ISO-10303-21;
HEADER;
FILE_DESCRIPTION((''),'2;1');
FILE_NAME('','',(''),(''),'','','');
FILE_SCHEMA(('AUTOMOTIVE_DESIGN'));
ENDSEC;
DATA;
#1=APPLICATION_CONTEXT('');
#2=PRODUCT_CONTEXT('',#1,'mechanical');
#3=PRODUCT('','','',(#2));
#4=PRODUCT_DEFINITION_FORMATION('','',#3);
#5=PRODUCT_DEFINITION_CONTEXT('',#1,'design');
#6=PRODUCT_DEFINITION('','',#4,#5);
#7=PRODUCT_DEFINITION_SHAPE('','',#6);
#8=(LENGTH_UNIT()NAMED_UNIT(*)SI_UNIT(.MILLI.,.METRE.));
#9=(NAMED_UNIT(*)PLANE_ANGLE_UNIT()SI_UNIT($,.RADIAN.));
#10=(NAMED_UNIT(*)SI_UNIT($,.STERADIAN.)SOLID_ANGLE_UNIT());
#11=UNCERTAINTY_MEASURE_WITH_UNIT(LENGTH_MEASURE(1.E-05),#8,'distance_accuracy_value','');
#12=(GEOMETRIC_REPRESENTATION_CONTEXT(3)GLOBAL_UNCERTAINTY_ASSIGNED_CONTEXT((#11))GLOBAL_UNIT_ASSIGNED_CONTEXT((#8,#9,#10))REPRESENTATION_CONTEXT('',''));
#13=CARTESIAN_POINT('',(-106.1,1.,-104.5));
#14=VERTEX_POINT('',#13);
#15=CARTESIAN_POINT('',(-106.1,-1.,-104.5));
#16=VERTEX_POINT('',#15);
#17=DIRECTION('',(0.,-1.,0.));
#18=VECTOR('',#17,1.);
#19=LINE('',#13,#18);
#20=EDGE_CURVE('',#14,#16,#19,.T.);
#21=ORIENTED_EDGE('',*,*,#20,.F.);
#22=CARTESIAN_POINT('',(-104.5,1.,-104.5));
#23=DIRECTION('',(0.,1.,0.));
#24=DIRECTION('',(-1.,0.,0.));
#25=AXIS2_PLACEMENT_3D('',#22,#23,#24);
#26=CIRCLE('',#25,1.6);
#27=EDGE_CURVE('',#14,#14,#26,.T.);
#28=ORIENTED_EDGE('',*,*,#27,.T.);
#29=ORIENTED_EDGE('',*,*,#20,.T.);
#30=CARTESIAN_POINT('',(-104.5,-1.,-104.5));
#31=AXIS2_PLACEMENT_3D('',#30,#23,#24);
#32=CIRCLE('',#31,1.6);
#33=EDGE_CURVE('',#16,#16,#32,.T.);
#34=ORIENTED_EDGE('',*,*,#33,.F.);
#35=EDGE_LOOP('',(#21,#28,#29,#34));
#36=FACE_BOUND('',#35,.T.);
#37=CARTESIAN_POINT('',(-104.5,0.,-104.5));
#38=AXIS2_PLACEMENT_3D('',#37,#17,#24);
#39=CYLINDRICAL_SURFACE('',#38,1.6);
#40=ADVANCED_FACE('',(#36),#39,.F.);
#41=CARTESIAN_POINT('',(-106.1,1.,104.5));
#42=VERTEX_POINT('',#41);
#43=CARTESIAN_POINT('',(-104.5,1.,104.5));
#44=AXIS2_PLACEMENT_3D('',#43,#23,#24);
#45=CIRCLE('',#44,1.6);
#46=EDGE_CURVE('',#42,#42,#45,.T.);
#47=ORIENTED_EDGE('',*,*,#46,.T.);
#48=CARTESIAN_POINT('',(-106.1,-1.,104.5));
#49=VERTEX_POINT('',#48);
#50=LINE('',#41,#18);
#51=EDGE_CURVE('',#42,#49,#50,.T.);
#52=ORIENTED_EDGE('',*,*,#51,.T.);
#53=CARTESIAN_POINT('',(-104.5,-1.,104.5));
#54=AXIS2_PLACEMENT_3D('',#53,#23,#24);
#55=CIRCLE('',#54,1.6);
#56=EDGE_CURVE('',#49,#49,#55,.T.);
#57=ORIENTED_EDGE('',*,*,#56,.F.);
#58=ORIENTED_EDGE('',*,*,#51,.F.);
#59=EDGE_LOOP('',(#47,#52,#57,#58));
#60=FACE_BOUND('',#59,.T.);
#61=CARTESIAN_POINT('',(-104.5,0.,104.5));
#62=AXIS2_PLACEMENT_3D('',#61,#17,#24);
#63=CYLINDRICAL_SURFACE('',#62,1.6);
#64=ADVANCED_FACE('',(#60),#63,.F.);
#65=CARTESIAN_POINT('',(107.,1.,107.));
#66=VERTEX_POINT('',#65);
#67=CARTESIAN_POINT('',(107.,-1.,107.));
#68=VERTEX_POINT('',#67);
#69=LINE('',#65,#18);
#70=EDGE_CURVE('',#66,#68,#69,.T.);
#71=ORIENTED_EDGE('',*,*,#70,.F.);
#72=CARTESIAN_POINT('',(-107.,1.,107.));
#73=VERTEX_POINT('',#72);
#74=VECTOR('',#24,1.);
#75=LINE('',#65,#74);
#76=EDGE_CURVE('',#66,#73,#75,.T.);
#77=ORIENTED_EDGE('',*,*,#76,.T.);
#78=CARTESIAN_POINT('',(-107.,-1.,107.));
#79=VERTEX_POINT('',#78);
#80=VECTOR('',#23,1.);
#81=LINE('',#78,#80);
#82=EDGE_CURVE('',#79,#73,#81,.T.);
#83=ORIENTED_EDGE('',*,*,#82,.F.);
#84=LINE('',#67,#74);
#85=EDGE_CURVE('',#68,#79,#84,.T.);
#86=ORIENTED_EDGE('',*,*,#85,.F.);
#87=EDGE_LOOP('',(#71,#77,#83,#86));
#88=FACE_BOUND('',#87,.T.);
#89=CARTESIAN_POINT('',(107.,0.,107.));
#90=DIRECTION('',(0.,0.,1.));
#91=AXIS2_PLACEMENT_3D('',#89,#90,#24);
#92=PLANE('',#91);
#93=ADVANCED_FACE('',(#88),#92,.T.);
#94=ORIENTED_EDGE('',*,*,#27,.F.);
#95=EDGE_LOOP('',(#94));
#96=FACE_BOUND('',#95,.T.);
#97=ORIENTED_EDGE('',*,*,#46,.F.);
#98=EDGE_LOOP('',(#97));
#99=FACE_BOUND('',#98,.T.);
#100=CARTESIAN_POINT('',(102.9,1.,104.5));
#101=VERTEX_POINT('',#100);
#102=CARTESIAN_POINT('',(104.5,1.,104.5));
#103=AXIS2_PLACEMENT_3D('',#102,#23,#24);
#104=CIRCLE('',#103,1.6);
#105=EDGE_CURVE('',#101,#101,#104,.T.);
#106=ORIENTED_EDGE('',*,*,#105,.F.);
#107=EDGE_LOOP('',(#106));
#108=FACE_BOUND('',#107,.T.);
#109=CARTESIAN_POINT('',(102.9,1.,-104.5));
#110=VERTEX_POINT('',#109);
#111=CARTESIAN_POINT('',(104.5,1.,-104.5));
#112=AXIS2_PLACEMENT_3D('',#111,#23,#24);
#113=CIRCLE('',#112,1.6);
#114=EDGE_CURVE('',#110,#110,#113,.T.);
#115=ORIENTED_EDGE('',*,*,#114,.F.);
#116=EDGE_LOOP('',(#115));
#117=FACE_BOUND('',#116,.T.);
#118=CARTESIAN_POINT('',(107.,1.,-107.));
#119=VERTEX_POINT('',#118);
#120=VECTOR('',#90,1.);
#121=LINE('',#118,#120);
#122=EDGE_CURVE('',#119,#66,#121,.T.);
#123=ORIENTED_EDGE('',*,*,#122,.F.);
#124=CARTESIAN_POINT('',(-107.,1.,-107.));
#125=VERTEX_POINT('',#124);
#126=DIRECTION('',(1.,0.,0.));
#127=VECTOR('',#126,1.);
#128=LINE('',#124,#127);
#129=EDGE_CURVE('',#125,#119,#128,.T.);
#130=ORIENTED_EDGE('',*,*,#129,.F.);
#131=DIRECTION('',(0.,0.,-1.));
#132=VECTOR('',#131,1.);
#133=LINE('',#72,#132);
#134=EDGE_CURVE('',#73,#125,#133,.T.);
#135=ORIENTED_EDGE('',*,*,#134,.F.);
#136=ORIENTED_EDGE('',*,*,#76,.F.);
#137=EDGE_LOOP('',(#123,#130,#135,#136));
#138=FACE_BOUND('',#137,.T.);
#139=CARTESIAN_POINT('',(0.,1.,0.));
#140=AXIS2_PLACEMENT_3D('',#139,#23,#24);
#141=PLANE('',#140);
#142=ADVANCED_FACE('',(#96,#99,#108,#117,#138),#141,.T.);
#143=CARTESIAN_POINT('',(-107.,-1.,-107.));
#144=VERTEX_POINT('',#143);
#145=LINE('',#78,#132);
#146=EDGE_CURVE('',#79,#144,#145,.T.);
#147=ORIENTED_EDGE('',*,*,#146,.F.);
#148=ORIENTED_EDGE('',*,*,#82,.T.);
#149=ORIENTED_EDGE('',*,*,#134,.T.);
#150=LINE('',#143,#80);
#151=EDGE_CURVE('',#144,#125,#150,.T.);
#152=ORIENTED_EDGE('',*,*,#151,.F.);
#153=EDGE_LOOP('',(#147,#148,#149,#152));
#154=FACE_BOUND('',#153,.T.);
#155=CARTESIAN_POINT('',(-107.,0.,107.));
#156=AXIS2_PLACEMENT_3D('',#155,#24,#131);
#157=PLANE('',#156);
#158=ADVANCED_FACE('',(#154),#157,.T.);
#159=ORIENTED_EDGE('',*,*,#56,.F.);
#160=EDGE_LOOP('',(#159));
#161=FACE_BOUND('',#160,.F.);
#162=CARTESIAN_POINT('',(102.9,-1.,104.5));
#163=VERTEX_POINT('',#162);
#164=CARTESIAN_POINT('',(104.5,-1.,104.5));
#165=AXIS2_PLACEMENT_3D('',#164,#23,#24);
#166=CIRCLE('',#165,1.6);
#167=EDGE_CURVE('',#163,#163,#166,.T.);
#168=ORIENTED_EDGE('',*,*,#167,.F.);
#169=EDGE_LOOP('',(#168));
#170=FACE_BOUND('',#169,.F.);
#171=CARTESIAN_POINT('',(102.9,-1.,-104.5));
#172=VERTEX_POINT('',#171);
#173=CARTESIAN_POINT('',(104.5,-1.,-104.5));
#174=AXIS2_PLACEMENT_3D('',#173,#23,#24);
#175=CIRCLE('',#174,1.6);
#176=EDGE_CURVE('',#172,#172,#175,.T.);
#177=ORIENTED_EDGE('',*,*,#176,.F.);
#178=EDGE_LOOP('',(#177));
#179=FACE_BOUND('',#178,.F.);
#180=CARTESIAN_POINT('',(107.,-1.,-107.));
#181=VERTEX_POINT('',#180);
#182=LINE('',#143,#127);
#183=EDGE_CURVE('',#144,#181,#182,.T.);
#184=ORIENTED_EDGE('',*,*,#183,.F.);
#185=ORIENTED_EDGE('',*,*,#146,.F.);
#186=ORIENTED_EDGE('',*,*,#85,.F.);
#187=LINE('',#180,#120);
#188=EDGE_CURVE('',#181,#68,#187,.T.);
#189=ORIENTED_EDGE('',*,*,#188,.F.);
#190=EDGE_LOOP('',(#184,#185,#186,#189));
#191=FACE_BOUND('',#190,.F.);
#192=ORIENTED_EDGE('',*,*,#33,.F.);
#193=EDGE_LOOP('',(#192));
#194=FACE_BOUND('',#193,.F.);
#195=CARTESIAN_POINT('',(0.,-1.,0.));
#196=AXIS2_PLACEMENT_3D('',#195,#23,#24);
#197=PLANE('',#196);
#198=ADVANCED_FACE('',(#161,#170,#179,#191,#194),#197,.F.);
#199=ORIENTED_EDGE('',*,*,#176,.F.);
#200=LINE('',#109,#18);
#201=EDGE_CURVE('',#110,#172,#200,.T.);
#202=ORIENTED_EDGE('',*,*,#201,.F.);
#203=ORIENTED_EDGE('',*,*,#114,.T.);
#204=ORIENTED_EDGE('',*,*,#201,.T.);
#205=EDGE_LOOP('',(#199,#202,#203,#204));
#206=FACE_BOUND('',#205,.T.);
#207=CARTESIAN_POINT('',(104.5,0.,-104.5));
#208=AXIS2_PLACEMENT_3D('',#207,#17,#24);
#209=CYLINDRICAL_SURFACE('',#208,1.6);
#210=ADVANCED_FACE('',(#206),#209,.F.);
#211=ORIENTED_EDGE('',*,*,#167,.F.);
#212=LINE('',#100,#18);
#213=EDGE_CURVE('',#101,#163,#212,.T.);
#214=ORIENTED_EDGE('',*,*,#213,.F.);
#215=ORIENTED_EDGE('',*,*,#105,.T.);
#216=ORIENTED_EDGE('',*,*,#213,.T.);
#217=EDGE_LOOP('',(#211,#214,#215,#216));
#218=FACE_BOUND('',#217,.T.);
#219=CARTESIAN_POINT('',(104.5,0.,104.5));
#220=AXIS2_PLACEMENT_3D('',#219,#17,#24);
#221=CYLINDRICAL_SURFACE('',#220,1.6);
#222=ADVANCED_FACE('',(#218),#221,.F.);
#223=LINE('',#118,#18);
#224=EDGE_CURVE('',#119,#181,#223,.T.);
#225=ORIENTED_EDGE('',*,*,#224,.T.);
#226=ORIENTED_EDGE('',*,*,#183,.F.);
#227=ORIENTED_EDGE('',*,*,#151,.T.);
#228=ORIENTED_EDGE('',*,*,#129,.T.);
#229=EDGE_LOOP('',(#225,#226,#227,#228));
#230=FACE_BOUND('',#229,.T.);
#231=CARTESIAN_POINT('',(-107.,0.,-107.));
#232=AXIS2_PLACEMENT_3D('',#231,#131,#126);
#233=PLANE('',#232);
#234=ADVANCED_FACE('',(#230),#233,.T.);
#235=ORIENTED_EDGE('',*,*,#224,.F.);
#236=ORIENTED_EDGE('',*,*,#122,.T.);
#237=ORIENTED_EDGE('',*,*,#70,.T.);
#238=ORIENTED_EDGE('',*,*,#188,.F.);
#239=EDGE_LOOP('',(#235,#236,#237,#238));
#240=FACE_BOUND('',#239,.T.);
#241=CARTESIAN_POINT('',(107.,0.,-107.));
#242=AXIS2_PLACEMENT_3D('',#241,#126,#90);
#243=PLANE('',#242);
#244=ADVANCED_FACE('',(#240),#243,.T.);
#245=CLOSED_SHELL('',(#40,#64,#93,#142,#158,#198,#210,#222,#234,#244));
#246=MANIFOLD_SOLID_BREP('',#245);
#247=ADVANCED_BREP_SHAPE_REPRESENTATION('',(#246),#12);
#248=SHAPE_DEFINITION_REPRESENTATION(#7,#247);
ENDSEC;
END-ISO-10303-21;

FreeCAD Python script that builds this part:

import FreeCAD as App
import Part
import Sketcher

V = App.Vector
Q = App.Units.Quantity


def add_polygon(sketch, points):
    """Adds a closed chain of lines whose ends are joined by coincident constraints."""
    first, n = sketch.GeometryCount, len(points)
    for a, b in zip(points, points[1:] + points[:1]):
        sketch.addGeometry(Part.LineSegment(App.Vector(*a, 0), App.Vector(*b, 0)), False)
    for i in range(n):
        sketch.addConstraint(Sketcher.Constraint("Coincident", first + i, 2, first + (i + 1) % n, 1))

doc = App.newDocument("Part")
body = doc.addObject("PartDesign::Body", "Body")

sketch1 = body.newObject("Sketcher::SketchObject", "Sketch")
sketch1.AttachmentSupport = (doc.getObject("XZ_Plane"), [""])
sketch1.MapMode = "FlatFace"
add_polygon(sketch1, [(107, -107), (-107, -107), (-107, 107), (107, 107)])
sketch1.addGeometry(Part.Circle(V(104.5, -104.5, 0), V(0, 0, 1), 1.6), False)
sketch1.addGeometry(Part.Circle(V(-104.5, -104.5, 0), V(0, 0, 1), 1.6), False)
sketch1.addGeometry(Part.Circle(V(104.5, 104.5, 0), V(0, 0, 1), 1.6), False)
sketch1.addGeometry(Part.Circle(V(-104.5, 104.5, 0), V(0, 0, 1), 1.6), False)
sketch1.addConstraint(Sketcher.Constraint("Horizontal", 0))
sketch1.addConstraint(Sketcher.Constraint("Vertical", 1))
sketch1.addConstraint(Sketcher.Constraint("Horizontal", 2))
sketch1.addConstraint(Sketcher.Constraint("Vertical", 3))
sketch1.addConstraint(Sketcher.Constraint("Equal", 4, 5))
sketch1.addConstraint(Sketcher.Constraint("Equal", 5, 6))
sketch1.addConstraint(Sketcher.Constraint("Equal", 6, 7))
sketch1.addConstraint(Sketcher.Constraint("Symmetric", 5, 3, 6, 3, -1, 1))
sketch1.addConstraint(Sketcher.Constraint("Symmetric", 4, 3, 7, 3, -1, 1))
sketch1.addConstraint(Sketcher.Constraint("Symmetric", 0, 2, 2, 2, -1, 1))
sketch1.addConstraint(Sketcher.Constraint("Symmetric", 4, 3, 5, 3, -2))
sketch1.addConstraint(Sketcher.Constraint("Equal", 2, 1))
sketch1.addConstraint(Sketcher.Constraint("Diameter", 4, Q("3.2 mm")))
sketch1.addConstraint(Sketcher.Constraint("DistanceX", 0, 2, 0, 1, Q("214 mm")))
sketch1.addConstraint(Sketcher.Constraint("DistanceX", 5, 3, 4, 3, Q("209 mm")))
sketch1.addConstraint(Sketcher.Constraint("DistanceY", 4, 3, 6, 3, Q("209 mm")))
pad1 = body.newObject("PartDesign::Pad", "Pad")
pad1.Profile = sketch1
pad1.Length = 2
pad1.Midplane = True

doc.recompute()
